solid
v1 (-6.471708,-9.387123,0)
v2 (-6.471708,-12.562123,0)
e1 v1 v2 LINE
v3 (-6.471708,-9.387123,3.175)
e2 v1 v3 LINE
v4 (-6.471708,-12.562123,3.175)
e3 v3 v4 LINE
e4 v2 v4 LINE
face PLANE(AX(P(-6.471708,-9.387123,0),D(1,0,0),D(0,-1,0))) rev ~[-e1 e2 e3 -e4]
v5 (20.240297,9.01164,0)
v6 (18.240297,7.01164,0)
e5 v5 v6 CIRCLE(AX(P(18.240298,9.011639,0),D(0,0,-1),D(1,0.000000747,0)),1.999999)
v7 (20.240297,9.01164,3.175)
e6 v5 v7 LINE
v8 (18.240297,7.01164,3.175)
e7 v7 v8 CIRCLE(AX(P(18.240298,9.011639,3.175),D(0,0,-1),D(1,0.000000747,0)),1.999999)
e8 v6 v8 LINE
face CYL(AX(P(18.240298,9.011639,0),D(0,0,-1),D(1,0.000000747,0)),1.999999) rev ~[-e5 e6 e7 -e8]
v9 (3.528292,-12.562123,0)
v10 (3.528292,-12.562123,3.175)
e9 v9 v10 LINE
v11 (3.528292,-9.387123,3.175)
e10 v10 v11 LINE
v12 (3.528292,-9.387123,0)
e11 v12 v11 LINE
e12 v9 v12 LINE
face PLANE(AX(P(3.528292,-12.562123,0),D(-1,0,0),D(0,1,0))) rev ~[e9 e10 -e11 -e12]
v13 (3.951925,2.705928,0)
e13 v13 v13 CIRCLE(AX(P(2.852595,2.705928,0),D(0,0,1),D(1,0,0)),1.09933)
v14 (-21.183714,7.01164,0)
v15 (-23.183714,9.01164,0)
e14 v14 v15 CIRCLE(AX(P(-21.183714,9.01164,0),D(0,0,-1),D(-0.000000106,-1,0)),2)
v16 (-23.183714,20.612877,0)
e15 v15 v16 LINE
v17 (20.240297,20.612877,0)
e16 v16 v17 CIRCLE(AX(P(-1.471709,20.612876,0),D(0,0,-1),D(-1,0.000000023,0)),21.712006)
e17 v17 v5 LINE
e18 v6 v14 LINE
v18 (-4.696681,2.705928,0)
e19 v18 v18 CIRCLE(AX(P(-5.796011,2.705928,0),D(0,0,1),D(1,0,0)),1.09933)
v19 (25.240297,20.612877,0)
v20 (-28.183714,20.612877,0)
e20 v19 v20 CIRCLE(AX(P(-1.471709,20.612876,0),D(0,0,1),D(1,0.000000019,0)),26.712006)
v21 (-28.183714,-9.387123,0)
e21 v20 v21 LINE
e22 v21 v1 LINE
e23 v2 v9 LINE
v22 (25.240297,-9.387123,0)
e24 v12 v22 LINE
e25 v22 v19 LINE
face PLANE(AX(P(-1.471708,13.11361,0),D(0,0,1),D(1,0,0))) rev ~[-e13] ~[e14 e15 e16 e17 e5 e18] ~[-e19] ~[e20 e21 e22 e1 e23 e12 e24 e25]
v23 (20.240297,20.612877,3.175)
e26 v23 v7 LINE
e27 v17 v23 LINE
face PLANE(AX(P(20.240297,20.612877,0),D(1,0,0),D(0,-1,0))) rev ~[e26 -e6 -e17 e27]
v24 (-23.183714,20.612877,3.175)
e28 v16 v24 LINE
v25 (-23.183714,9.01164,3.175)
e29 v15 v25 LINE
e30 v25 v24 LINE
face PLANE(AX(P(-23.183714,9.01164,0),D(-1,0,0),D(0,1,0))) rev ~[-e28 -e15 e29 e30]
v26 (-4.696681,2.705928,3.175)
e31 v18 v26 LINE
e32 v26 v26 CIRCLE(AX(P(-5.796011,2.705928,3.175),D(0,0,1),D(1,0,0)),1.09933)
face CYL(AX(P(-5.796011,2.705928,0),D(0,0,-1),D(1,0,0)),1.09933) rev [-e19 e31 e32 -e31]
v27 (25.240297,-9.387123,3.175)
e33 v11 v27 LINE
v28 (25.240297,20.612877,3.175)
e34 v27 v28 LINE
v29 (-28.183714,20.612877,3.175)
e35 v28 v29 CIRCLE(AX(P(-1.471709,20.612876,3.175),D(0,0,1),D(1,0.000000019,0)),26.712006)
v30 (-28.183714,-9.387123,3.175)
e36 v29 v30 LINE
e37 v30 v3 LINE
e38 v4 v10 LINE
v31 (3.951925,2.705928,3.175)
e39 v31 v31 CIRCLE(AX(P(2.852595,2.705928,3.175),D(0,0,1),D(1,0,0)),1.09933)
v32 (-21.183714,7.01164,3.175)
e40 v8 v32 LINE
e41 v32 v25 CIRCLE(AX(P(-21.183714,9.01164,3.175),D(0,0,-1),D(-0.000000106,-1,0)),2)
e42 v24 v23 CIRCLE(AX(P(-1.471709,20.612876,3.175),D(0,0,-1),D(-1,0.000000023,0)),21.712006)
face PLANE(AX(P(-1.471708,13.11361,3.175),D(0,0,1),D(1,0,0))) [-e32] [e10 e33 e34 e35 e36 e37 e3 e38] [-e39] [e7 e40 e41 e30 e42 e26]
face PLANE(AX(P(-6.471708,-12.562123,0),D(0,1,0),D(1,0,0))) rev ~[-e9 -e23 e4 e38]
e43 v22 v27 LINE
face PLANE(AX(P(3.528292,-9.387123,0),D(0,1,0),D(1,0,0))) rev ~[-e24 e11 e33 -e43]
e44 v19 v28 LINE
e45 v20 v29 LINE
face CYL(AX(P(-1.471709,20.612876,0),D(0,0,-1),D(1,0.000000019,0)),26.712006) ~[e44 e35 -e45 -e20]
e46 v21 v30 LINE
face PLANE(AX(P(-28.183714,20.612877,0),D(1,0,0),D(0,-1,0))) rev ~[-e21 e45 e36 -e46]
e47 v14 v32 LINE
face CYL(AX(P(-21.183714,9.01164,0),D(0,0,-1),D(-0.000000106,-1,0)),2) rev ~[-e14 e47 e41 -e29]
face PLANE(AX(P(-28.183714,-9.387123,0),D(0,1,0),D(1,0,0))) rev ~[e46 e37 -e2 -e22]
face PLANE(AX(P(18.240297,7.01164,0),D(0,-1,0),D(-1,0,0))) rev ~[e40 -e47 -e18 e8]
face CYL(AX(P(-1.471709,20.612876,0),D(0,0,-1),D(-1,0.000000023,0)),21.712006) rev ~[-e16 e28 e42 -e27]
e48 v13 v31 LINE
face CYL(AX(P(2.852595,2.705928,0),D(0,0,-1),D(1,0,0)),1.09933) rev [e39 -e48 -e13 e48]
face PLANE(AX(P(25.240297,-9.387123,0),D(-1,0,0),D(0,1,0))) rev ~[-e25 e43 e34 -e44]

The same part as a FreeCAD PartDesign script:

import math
import FreeCAD as App
import Part
import Sketcher
from FreeCAD import Vector
Q = App.Units.Quantity

doc = App.newDocument("Part")
params = doc.addObject("Spreadsheet::Sheet", "Params")
for row, (alias, value) in enumerate([
    ("sketch1_radius", "1.999999 mm"),
    ("sketch1_width", "10 mm"),
    ("sketch1_height", "30 mm"),
    ("pad1_length", "3.175 mm"),
], start=1):
    params.set(f"A{row}", alias)
    params.set(f"B{row}", "=" + value)
    params.setAlias(f"B{row}", alias)

body = doc.addObject("PartDesign::Body", "Body")

# Sketch on XY plane
sketch1 = body.newObject("Sketcher::SketchObject", "Sketch")
sketch1.AttachmentSupport = (doc.getObject("XY_Plane"), [""])
sketch1.MapMode = "FlatFace"
sketch1.addGeometry([
    Part.LineSegment(Vector(-28.2, 20.6, 0), Vector(-28.2, -9.4, 0)),  # 0
    Part.LineSegment(Vector(-28.2, -9.4, 0), Vector(-6.5, -9.4, 0)),  # 1
    Part.LineSegment(Vector(-6.5, -9.4, 0), Vector(-6.5, -12.6, 0)),  # 2
    Part.LineSegment(Vector(-6.5, -12.6, 0), Vector(3.5, -12.6, 0)),  # 3
    Part.LineSegment(Vector(3.5, -12.6, 0), Vector(3.5, -9.4, 0)),  # 4
    Part.LineSegment(Vector(3.5, -9.4, 0), Vector(25.2, -9.4, 0)),  # 5
    Part.LineSegment(Vector(25.2, -9.4, 0), Vector(25.2, 20.6, 0)),  # 6
    Part.ArcOfCircle(Part.Circle(Vector(-1.5, 20.6, 0), Vector(0, 0, 1), 26.7), math.radians(0), math.radians(180)),  # 7
    Part.Circle(Vector(-5.8, 2.7, 0), Vector(0, 0, 1), 1.1),  # 8
    Part.Circle(Vector(2.9, 2.7, 0), Vector(0, 0, 1), 1.1),  # 9
    Part.LineSegment(Vector(-23.2, 9, 0), Vector(-23.2, 20.6, 0)),  # 10
    Part.ArcOfCircle(Part.Circle(Vector(-1.5, 20.6, 0), Vector(0, 0, 1), 21.7), math.radians(0), math.radians(180)),  # 11
    Part.LineSegment(Vector(20.2, 20.6, 0), Vector(20.2, 9, 0)),  # 12
    Part.ArcOfCircle(Part.Circle(Vector(18.2, 9, 0), Vector(0, 0, 1), 2), math.radians(-90), math.radians(0)),  # 13
    Part.LineSegment(Vector(18.2, 7, 0), Vector(-21.2, 7, 0)),  # 14
    Part.ArcOfCircle(Part.Circle(Vector(-21.2, 9, 0), Vector(0, 0, 1), 2), math.radians(-180), math.radians(-90)),  # 15
], False)
sketch1.addConstraint([
    Sketcher.Constraint("Coincident", 0, 2, 1, 1),
    Sketcher.Constraint("Coincident", 1, 2, 2, 1),
    Sketcher.Constraint("Coincident", 2, 2, 3, 1),
    Sketcher.Constraint("Coincident", 3, 2, 4, 1),
    Sketcher.Constraint("Coincident", 4, 2, 5, 1),
    Sketcher.Constraint("Coincident", 5, 2, 6, 1),
    Sketcher.Constraint("Tangent", 6, 2, 7, 1),
    Sketcher.Constraint("Tangent", 7, 2, 0, 1),
    Sketcher.Constraint("Tangent", 10, 2, 11, 2),
    Sketcher.Constraint("Tangent", 11, 1, 12, 1),
    Sketcher.Constraint("Tangent", 12, 2, 13, 2),
    Sketcher.Constraint("Tangent", 13, 1, 14, 1),
    Sketcher.Constraint("Tangent", 14, 2, 15, 2),
    Sketcher.Constraint("Tangent", 15, 1, 10, 1),
    Sketcher.Constraint("Vertical", 0),
    Sketcher.Constraint("Horizontal", 1),
    Sketcher.Constraint("Vertical", 2),
    Sketcher.Constraint("Horizontal", 3),
    Sketcher.Constraint("Vertical", 4),
    Sketcher.Constraint("Horizontal", 5),
    Sketcher.Constraint("Vertical", 6),
    Sketcher.Constraint("Vertical", 10),
    Sketcher.Constraint("Vertical", 12),
    Sketcher.Constraint("Horizontal", 14),
    Sketcher.Constraint("Coincident", 11, 3, 7, 3),
    Sketcher.Constraint("Equal", 8, 9),
    Sketcher.Constraint("Equal", 13, 15),
    Sketcher.Constraint("Horizontal", 8, 3, 9, 3),
    Sketcher.Constraint("Horizontal", 1, 2, 4, 2),
    Sketcher.Constraint("Equal", 1, 5),
    Sketcher.Constraint("Radius", 13, Q("1.999999 mm")),
    Sketcher.Constraint("DistanceX", 3, 1, 3, 2, Q("10 mm")),
    Sketcher.Constraint("DistanceY", 0, 2, 0, 1, Q("30 mm")),
    Sketcher.Constraint("DistanceX", 0, 2, 15, 3, Q("7 mm")),
    Sketcher.Constraint("Diameter", 8, Q("2.19866 mm")),
    Sketcher.Constraint("DistanceY", 2, 2, 2, 1, Q("3.175 mm")),
    Sketcher.Constraint("Radius", 7, Q("26.712006 mm")),
    Sketcher.Constraint("DistanceX", -1, 1, 13, 3, Q("18.240298 mm")),
    Sketcher.Constraint("DistanceX", 9, 3, 11, 1, Q("17.387702 mm")),
    Sketcher.Constraint("DistanceY", 10, 1, 10, 2, Q("11.601237 mm")),
    Sketcher.Constraint("DistanceX", 8, 3, -1, 1, Q("5.796011 mm")),
    Sketcher.Constraint("DistanceY", -1, 1, 8, 3, Q("2.705928 mm")),
    Sketcher.Constraint("DistanceY", -1, 1, 13, 3, Q("9.011639 mm")),
])
sketch1.setExpression("Constraints[30]", "Params.sketch1_radius")
sketch1.setExpression("Constraints[31]", "Params.sketch1_width")
sketch1.setExpression("Constraints[32]", "Params.sketch1_height")
pad1 = body.newObject("PartDesign::Pad", "Pad")
pad1.Profile = sketch1
pad1.setExpression("Length", "Params.pad1_length")

doc.recompute()
